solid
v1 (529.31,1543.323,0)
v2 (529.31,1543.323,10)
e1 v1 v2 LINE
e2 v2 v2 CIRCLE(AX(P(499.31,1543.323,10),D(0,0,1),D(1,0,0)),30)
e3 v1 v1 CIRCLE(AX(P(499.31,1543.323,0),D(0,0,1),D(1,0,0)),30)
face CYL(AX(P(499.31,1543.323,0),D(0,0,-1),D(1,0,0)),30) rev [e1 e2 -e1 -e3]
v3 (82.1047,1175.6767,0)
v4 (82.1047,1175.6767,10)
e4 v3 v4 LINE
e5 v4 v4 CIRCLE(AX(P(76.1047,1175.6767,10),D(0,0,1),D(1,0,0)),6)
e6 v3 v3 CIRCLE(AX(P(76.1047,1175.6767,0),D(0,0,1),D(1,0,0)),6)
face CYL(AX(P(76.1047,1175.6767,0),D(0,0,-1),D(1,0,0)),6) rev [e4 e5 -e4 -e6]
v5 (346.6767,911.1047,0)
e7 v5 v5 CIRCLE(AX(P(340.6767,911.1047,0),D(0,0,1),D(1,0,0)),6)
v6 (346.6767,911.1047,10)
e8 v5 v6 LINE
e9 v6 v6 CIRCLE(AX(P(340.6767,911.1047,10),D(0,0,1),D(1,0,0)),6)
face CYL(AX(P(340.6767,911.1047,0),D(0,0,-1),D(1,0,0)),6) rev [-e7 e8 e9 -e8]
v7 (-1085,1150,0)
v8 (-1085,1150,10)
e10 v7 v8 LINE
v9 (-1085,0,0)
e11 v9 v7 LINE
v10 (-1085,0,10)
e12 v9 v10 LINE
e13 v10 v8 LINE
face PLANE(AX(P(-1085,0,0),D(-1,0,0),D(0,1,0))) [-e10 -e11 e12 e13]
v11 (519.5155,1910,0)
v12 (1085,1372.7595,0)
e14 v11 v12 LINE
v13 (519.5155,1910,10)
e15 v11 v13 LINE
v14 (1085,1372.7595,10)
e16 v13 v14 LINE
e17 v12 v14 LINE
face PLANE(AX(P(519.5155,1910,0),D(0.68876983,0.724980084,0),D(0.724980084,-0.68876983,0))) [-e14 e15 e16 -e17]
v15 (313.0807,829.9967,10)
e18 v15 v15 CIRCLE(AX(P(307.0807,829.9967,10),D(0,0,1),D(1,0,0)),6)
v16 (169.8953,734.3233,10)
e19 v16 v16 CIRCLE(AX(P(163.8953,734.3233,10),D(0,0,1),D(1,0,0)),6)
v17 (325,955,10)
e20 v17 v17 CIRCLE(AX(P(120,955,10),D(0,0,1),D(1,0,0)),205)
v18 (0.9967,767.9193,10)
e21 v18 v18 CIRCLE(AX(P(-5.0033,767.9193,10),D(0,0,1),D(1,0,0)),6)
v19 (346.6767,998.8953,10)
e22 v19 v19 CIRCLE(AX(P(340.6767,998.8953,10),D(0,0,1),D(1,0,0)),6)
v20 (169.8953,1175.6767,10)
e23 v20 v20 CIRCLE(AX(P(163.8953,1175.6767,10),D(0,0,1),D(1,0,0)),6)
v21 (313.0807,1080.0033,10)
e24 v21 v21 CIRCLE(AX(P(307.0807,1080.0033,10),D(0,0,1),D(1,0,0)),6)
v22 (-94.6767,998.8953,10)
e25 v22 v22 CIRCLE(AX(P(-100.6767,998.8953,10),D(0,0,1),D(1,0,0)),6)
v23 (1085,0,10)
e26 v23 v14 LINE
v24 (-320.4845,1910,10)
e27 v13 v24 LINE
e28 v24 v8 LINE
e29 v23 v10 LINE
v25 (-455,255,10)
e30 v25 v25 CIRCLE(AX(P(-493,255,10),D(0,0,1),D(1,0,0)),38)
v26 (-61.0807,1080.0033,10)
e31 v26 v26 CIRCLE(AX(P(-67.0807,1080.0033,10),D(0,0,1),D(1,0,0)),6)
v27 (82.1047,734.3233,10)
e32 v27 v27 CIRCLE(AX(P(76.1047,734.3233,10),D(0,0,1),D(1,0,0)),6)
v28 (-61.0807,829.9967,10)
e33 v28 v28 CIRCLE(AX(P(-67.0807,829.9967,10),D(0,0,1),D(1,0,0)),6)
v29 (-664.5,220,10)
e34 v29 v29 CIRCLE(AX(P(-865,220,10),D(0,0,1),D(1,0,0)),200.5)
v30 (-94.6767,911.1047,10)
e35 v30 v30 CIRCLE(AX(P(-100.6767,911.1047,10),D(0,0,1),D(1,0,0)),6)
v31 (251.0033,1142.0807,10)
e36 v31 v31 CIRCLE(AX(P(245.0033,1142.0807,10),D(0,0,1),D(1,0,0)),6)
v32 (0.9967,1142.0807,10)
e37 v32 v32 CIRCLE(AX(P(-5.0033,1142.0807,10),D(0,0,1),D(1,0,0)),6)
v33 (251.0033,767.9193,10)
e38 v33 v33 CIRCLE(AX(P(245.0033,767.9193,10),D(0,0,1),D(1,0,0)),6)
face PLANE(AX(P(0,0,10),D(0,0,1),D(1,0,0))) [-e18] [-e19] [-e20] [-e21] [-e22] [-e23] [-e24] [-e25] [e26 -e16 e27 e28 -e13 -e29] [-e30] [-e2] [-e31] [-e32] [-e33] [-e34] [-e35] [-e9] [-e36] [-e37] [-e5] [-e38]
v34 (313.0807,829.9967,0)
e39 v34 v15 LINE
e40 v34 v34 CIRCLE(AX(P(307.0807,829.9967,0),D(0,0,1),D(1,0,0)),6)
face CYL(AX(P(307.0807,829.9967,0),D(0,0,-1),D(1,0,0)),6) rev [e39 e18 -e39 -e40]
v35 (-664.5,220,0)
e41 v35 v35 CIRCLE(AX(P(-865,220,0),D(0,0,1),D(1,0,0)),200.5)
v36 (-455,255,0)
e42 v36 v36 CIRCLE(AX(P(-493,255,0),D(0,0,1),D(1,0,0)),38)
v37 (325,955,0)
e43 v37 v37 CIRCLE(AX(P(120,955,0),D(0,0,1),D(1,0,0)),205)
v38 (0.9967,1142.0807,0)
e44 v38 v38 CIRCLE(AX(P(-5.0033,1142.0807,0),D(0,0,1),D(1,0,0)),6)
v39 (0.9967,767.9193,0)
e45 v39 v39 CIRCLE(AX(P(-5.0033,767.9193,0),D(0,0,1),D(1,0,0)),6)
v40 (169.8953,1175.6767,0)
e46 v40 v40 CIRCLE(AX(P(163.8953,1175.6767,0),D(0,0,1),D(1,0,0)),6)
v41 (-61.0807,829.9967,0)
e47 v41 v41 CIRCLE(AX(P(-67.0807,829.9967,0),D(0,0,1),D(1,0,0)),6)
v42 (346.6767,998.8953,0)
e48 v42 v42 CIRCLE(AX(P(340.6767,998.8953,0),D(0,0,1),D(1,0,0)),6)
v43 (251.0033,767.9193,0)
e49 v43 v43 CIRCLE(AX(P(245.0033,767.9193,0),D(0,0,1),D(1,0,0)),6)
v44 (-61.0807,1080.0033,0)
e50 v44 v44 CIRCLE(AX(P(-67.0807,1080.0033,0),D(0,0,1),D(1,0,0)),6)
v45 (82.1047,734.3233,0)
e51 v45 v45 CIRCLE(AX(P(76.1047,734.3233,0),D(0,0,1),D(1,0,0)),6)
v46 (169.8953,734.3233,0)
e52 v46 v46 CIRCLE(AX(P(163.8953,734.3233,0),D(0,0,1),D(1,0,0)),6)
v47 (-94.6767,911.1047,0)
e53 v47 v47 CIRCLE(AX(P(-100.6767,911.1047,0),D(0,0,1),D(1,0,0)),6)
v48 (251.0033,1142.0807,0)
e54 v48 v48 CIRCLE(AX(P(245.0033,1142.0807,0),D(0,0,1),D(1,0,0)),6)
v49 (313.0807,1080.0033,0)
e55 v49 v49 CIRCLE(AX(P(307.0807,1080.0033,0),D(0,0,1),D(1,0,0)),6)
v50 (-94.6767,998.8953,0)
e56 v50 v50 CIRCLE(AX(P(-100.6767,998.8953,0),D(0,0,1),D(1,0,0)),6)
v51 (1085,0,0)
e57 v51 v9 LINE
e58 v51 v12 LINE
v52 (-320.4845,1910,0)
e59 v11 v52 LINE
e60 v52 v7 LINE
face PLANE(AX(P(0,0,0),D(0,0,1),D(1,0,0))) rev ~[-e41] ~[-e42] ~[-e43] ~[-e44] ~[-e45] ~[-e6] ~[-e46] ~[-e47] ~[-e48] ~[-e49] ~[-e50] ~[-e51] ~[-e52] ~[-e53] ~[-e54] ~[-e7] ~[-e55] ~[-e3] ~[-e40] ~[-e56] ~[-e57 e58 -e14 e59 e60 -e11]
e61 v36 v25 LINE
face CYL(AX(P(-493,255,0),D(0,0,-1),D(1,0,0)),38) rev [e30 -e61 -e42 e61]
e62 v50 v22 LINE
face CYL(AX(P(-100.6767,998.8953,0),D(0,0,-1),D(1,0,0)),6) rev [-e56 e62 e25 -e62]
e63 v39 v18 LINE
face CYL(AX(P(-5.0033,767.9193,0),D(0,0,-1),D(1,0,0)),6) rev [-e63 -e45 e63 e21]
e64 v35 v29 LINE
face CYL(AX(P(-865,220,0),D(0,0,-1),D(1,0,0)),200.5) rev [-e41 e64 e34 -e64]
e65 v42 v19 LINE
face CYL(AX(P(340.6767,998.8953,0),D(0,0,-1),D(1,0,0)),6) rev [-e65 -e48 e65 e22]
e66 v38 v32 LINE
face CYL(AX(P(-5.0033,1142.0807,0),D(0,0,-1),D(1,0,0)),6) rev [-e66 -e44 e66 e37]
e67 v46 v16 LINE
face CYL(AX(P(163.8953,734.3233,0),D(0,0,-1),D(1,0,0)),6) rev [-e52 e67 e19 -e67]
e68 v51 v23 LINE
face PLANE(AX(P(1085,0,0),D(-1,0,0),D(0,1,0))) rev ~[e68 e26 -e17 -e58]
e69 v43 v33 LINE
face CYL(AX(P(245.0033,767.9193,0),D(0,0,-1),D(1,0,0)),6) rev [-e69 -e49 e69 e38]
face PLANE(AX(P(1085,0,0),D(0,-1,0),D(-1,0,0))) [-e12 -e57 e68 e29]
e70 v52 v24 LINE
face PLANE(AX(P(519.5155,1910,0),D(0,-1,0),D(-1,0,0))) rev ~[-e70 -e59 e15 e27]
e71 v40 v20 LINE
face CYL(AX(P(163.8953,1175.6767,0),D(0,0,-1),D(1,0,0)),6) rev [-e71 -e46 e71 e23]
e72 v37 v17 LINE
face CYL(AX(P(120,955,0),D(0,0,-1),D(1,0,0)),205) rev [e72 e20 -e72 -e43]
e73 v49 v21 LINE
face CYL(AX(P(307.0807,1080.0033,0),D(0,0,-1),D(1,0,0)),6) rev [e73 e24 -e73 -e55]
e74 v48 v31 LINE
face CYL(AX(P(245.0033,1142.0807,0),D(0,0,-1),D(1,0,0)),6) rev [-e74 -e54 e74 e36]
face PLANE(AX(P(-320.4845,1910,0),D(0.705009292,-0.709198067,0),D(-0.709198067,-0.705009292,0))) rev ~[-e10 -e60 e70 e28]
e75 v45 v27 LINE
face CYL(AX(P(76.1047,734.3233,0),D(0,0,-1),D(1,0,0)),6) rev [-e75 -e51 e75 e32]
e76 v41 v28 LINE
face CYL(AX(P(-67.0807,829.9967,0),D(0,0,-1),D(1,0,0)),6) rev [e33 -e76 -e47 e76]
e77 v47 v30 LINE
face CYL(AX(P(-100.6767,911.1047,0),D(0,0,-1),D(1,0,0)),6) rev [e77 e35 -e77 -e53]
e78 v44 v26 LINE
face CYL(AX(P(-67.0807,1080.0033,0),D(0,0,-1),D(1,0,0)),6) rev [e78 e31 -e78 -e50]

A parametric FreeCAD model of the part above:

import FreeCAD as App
import Part
import Sketcher

V = App.Vector


def add_polygon(sketch, points):
    """Adds a closed chain of lines whose ends are joined by coincident constraints."""
    first, n = sketch.GeometryCount, len(points)
    for a, b in zip(points, points[1:] + points[:1]):
        sketch.addGeometry(Part.LineSegment(App.Vector(*a, 0), App.Vector(*b, 0)), False)
    for i in range(n):
        sketch.addConstraint(Sketcher.Constraint("Coincident", first + i, 2, first + (i + 1) % n, 1))

doc = App.newDocument("Part")
params = doc.addObject("Spreadsheet::Sheet", "Params")
for row, (alias, value) in enumerate([
    ("sketch1_diameter", "401 mm"),
    ("sketch1_diameter2", "76 mm"),
    ("sketch1_diameter3", "12 mm"),
    ("sketch1_diameter4", "410 mm"),
    ("sketch1_diameter5", "60 mm"),
    ("pad1_length", "10 mm"),
], start=1):
    params.set(f"A{row}", alias)
    params.set(f"B{row}", "=" + value)
    params.setAlias(f"B{row}", alias)

body = doc.addObject("PartDesign::Body", "Body")

# Sketch on XY plane
sketch1 = body.newObject("Sketcher::SketchObject", "Sketch")
sketch1.AttachmentSupport = (doc.getObject("XY_Plane"), [""])
sketch1.MapMode = "FlatFace"
add_polygon(sketch1, [(1085, 1372.7595), (519.5155, 1910), (-320.4845, 1910), (-1085, 1150), (-1085, 0), (1085, 0)])  # lines 0-5
sketch1.addGeometry(Part.Circle(V(-865, 220, 0), V(0, 0, 1), 200.5), False)  # 6
sketch1.addGeometry(Part.Circle(V(-493, 255, 0), V(0, 0, 1), 38), False)  # 7
sketch1.addGeometry(Part.Circle(V(-5.0033, 767.9193, 0), V(0, 0, 1), 6), False)  # 8
sketch1.addGeometry(Part.Circle(V(-67.0807, 829.9967, 0), V(0, 0, 1), 6), False)  # 9
sketch1.addGeometry(Part.Circle(V(-100.6767, 911.1047, 0), V(0, 0, 1), 6), False)  # 10
sketch1.addGeometry(Part.Circle(V(76.1047, 734.3233, 0), V(0, 0, 1), 6), False)  # 11
sketch1.addGeometry(Part.Circle(V(163.8953, 734.3233, 0), V(0, 0, 1), 6), False)  # 12
sketch1.addGeometry(Part.Circle(V(245.0033, 767.9193, 0), V(0, 0, 1), 6), False)  # 13
sketch1.addGeometry(Part.Circle(V(307.0807, 829.9967, 0), V(0, 0, 1), 6), False)  # 14
sketch1.addGeometry(Part.Circle(V(340.6767, 911.1047, 0), V(0, 0, 1), 6), False)  # 15
sketch1.addGeometry(Part.Circle(V(-100.6767, 998.8953, 0), V(0, 0, 1), 6), False)  # 16
sketch1.addGeometry(Part.Circle(V(-67.0807, 1080.0033, 0), V(0, 0, 1), 6), False)  # 17
sketch1.addGeometry(Part.Circle(V(-5.0033, 1142.0807, 0), V(0, 0, 1), 6), False)  # 18
sketch1.addGeometry(Part.Circle(V(120, 955, 0), V(0, 0, 1), 205), False)  # 19
sketch1.addGeometry(Part.Circle(V(76.1047, 1175.6767, 0), V(0, 0, 1), 6), False)  # 20
sketch1.addGeometry(Part.Circle(V(163.8953, 1175.6767, 0), V(0, 0, 1), 6), False)  # 21
sketch1.addGeometry(Part.Circle(V(245.0033, 1142.0807, 0), V(0, 0, 1), 6), False)  # 22
sketch1.addGeometry(Part.Circle(V(340.6767, 998.8953, 0), V(0, 0, 1), 6), False)  # 23
sketch1.addGeometry(Part.Circle(V(307.0807, 1080.0033, 0), V(0, 0, 1), 6), False)  # 24
sketch1.addGeometry(Part.Circle(V(499.31, 1543.323, 0), V(0, 0, 1), 30), False)  # 25
sketch1.addConstraint(Sketcher.Constraint("Horizontal", 1))
sketch1.addConstraint(Sketcher.Constraint("Vertical", 3))
sketch1.addConstraint(Sketcher.Constraint("Horizontal", 4))
sketch1.addConstraint(Sketcher.Constraint("Vertical", 5))
sketch1.addConstraint(Sketcher.Constraint("Equal", 8, 9))
sketch1.addConstraint(Sketcher.Constraint("Equal", 9, 10))
sketch1.addConstraint(Sketcher.Constraint("Equal", 10, 11))
sketch1.addConstraint(Sketcher.Constraint("Equal", 11, 12))
sketch1.addConstraint(Sketcher.Constraint("Equal", 12, 13))
sketch1.addConstraint(Sketcher.Constraint("Equal", 13, 14))
sketch1.addConstraint(Sketcher.Constraint("Equal", 14, 15))
sketch1.addConstraint(Sketcher.Constraint("Equal", 15, 16))
sketch1.addConstraint(Sketcher.Constraint("Equal", 16, 17))
sketch1.addConstraint(Sketcher.Constraint("Equal", 17, 18))
sketch1.addConstraint(Sketcher.Constraint("Equal", 18, 20))
sketch1.addConstraint(Sketcher.Constraint("Equal", 20, 21))
sketch1.addConstraint(Sketcher.Constraint("Equal", 21, 22))
sketch1.addConstraint(Sketcher.Constraint("Equal", 22, 23))
sketch1.addConstraint(Sketcher.Constraint("Equal", 23, 24))
sketch1.addConstraint(Sketcher.Constraint("Symmetric", 3, 2, 4, 2, -1, 1))
sketch1.addConstraint(Sketcher.Constraint("Horizontal", 11, 3, 12, 3))
sketch1.addConstraint(Sketcher.Constraint("Horizontal", 8, 3, 13, 3))
sketch1.addConstraint(Sketcher.Constraint("Horizontal", 9, 3, 14, 3))
sketch1.addConstraint(Sketcher.Constraint("Horizontal", 10, 3, 15, 3))
sketch1.addConstraint(Sketcher.Constraint("Horizontal", 20, 3, 21, 3))
sketch1.addConstraint(Sketcher.Constraint("Horizontal", 18, 3, 22, 3))
sketch1.addConstraint(Sketcher.Constraint("Horizontal", 16, 3, 23, 3))
sketch1.addConstraint(Sketcher.Constraint("Horizontal", 17, 3, 24, 3))
sketch1.addConstraint(Sketcher.Constraint("Vertical", 10, 3, 16, 3))
sketch1.addConstraint(Sketcher.Constraint("Vertical", 9, 3, 17, 3))
sketch1.addConstraint(Sketcher.Constraint("Vertical", 8, 3, 18, 3))
sketch1.addConstraint(Sketcher.Constraint("Vertical", 11, 3, 20, 3))
sketch1.addConstraint(Sketcher.Constraint("Vertical", 12, 3, 21, 3))
sketch1.addConstraint(Sketcher.Constraint("Vertical", 13, 3, 22, 3))
sketch1.addConstraint(Sketcher.Constraint("Vertical", 15, 3, 23, 3))
sketch1.addConstraint(Sketcher.Constraint("Vertical", 14, 3, 24, 3))
sketch1.addConstraint(Sketcher.Constraint("Diameter", 6, 401.0))
sketch1.addConstraint(Sketcher.Constraint("Diameter", 7, 76.0))
sketch1.addConstraint(Sketcher.Constraint("Diameter", 8, 12.0))
sketch1.addConstraint(Sketcher.Constraint("Diameter", 19, 410.0))
sketch1.addConstraint(Sketcher.Constraint("Diameter", 25, 60.0))
sketch1.addConstraint(Sketcher.Constraint("DistanceX", 1, 2, 1, 1, 840.0))
sketch1.addConstraint(Sketcher.Constraint("DistanceX", 4, 1, 4, 2, 2170.0))
sketch1.addConstraint(Sketcher.Constraint("DistanceY", 3, 2, 3, 1, 1150.0))
sketch1.addConstraint(Sketcher.Constraint("Distance", 0, 780.0))
sketch1.addConstraint(Sketcher.Constraint("Distance", 2, 1078.0))
sketch1.addConstraint(Sketcher.Constraint("DistanceY", -1, 1, 6, 3, 220.0))
sketch1.addConstraint(Sketcher.Constraint("DistanceY", -1, 1, 7, 3, 255.0))
sketch1.addConstraint(Sketcher.Constraint("DistanceY", -1, 1, 0, 2, 1910.0))
sketch1.addConstraint(Sketcher.Constraint("DistanceX", 6, 3, 7, 3, 372.0))
sketch1.addConstraint(Sketcher.Constraint("DistanceX", 2, 2, 6, 3, 220.0))
sketch1.addConstraint(Sketcher.Constraint("DistanceX", -1, 1, 19, 3, 120.0))
sketch1.addConstraint(Sketcher.Constraint("DistanceY", -1, 1, 19, 3, 955.0))
sketch1.addConstraint(Sketcher.Constraint("DistanceX", -1, 1, 25, 3, 499.31))
sketch1.addConstraint(Sketcher.Constraint("DistanceX", 10, 3, 13, 3, 345.68))
sketch1.addConstraint(Sketcher.Constraint("DistanceX", 8, 3, 15, 3, 345.68))
sketch1.addConstraint(Sketcher.Constraint("DistanceY", 11, 3, 17, 3, 345.68))
sketch1.addConstraint(Sketcher.Constraint("DistanceY", -1, 1, 25, 3, 1543.323))
sketch1.addConstraint(Sketcher.Constraint("DistanceX", 10, 3, 9, 3, 33.596))
sketch1.addConstraint(Sketcher.Constraint("DistanceY", 9, 3, 10, 3, 81.108))
sketch1.addConstraint(Sketcher.Constraint("DistanceX", 8, 3, 11, 3, 81.108))
sketch1.addConstraint(Sketcher.Constraint("DistanceY", 11, 3, 8, 3, 33.596))
sketch1.addConstraint(Sketcher.Constraint("DistanceX", 9, 3, 12, 3, 230.976))
sketch1.addConstraint(Sketcher.Constraint("DistanceX", 11, 3, 14, 3, 230.976))
sketch1.addConstraint(Sketcher.Constraint("DistanceY", 8, 3, 16, 3, 230.976))
sketch1.addConstraint(Sketcher.Constraint("DistanceY", 10, 3, 18, 3, 230.976))
sketch1.addConstraint(Sketcher.Constraint("DistanceY", 18, 3, 20, 3, 33.596))
sketch1.addConstraint(Sketcher.Constraint("DistanceX", 8, 3, -1, 1, 5.0033))
sketch1.addConstraint(Sketcher.Constraint("DistanceY", -1, 1, 8, 3, 767.9193))
sketch1.addConstraint(Sketcher.Constraint("DistanceX", 9, 3, -1, 1, 67.0807))
sketch1.addConstraint(Sketcher.Constraint("DistanceY", -1, 1, 9, 3, 829.9967))
sketch1.setExpression("Constraints[42]", "Params.sketch1_diameter")
sketch1.setExpression("Constraints[43]", "Params.sketch1_diameter2")
sketch1.setExpression("Constraints[44]", "Params.sketch1_diameter3")
sketch1.setExpression("Constraints[45]", "Params.sketch1_diameter4")
sketch1.setExpression("Constraints[46]", "Params.sketch1_diameter5")
pad1 = body.newObject("PartDesign::Pad", "Pad")
pad1.Profile = sketch1
pad1.setExpression("Length", "Params.pad1_length")

doc.recompute()
